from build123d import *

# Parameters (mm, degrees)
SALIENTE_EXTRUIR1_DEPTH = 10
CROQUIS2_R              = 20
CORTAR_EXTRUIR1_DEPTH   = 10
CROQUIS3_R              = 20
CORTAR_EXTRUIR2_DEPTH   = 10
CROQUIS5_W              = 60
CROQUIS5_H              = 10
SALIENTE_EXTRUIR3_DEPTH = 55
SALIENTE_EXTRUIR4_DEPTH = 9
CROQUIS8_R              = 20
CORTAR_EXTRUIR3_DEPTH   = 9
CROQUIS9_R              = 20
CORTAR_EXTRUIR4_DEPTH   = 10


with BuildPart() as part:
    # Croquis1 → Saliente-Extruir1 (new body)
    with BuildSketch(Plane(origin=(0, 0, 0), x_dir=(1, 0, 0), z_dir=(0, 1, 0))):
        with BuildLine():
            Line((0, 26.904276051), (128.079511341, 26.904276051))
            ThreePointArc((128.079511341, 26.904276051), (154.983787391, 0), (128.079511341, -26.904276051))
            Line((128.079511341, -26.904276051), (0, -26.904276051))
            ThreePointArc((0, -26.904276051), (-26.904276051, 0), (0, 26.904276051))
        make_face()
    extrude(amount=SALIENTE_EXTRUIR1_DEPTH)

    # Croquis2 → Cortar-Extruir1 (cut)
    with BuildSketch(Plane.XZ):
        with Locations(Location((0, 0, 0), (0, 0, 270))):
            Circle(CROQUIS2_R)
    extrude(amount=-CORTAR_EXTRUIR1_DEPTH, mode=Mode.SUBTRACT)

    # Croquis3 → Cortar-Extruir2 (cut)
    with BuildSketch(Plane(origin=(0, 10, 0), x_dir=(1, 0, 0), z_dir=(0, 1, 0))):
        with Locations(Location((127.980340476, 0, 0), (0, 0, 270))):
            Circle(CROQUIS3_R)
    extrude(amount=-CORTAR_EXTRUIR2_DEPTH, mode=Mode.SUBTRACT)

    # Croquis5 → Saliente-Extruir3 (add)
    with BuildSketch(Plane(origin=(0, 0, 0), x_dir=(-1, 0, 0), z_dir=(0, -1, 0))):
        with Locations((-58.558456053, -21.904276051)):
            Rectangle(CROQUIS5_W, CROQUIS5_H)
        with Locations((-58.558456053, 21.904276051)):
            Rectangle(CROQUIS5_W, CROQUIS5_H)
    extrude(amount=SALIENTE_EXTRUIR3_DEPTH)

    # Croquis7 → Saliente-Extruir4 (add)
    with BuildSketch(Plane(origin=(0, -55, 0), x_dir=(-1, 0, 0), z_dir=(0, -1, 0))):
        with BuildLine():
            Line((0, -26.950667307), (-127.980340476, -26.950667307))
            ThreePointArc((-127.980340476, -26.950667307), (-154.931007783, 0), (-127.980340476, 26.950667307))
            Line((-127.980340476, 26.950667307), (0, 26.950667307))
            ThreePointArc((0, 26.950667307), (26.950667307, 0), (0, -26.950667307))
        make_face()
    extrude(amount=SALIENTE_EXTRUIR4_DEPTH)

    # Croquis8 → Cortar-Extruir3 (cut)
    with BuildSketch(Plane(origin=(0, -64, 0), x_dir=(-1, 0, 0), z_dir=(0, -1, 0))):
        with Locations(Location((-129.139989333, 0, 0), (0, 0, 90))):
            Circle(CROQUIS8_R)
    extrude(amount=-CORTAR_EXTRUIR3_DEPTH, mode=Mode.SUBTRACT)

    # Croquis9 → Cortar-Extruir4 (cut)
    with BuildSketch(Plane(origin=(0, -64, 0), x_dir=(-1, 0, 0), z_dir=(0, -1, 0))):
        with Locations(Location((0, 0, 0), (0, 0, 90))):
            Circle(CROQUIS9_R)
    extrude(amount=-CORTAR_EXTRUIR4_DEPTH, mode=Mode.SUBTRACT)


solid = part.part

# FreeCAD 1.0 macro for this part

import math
import FreeCAD as App
import Part
import Sketcher


def add_polygon(sketch, points):
    """Adds a closed chain of lines whose ends are joined by coincident constraints."""
    first, n = sketch.GeometryCount, len(points)
    for a, b in zip(points, points[1:] + points[:1]):
        sketch.addGeometry(Part.LineSegment(App.Vector(*a, 0), App.Vector(*b, 0)), False)
    for i in range(n):
        sketch.addConstraint(Sketcher.Constraint("Coincident", first + i, 2, first + (i + 1) % n, 1))

doc = App.newDocument("Part")
body = doc.addObject("PartDesign::Body", "Body")

# Sketch on XZ plane
sketch1 = doc.addObject("Sketcher::SketchObject", "Sketch")
body.addObject(sketch1)
sketch1.AttachmentSupport = (doc.XZ_Plane, [""])
sketch1.MapMode = "FlatFace"
sketch1.addGeometry(Part.LineSegment(App.Vector(128, -27, 0), App.Vector(0, -27, 0)), False)
sketch1.addGeometry(Part.ArcOfCircle(Part.Circle(App.Vector(0, 0, 0), App.Vector(0, 0, 1), 27), math.radians(90), math.radians(270)), False)
sketch1.addGeometry(Part.LineSegment(App.Vector(0, 27, 0), App.Vector(128, 27, 0)), False)
sketch1.addGeometry(Part.ArcOfCircle(Part.Circle(App.Vector(128, 0, 0), App.Vector(0, 0, 1), 27), math.radians(-90), math.radians(90)), False)
sketch1.addConstraint(Sketcher.Constraint("Tangent", 0, 2, 1, 2))
sketch1.addConstraint(Sketcher.Constraint("Tangent", 1, 1, 2, 1))
sketch1.addConstraint(Sketcher.Constraint("Tangent", 2, 2, 3, 2))
sketch1.addConstraint(Sketcher.Constraint("Tangent", 3, 1, 0, 1))
sketch1.addConstraint(Sketcher.Constraint("Horizontal", 0))
sketch1.addConstraint(Sketcher.Constraint("Horizontal", 2))
sketch1.addConstraint(Sketcher.Constraint("Coincident", 1, 3, -1, 1))
sketch1.addConstraint(Sketcher.Constraint("Radius", 1, 26.904276))
sketch1.addConstraint(Sketcher.Constraint("DistanceX", 0, 2, 0, 1, 128.079511))
pad1 = doc.addObject("PartDesign::Pad", "Pad")
body.addObject(pad1)
pad1.Profile = sketch1
pad1.Length = 10
pad1.Reversed = True

# Sketch on XZ plane
sketch2 = doc.addObject("Sketcher::SketchObject", "Sketch001")
body.addObject(sketch2)
sketch2.AttachmentSupport = (doc.XZ_Plane, [""])
sketch2.MapMode = "FlatFace"
sketch2.addGeometry(Part.Circle(App.Vector(0, 0, 0), App.Vector(0, 0, 1), 20), False)
sketch2.addConstraint(Sketcher.Constraint("Coincident", 0, 3, -1, 1))
sketch2.addConstraint(Sketcher.Constraint("Diameter", 0, 40.0))
pocket1 = doc.addObject("PartDesign::Pocket", "Pocket")
body.addObject(pocket1)
pocket1.Profile = sketch2
pocket1.Length = 10

# Sketch on XZ plane
sketch3 = doc.addObject("Sketcher::SketchObject", "Sketch002")
body.addObject(sketch3)
sketch3.AttachmentSupport = (doc.XZ_Plane, [""])
sketch3.MapMode = "FlatFace"
sketch3.AttachmentOffset = App.Placement(App.Vector(0, 0, -10), App.Rotation())
sketch3.addGeometry(Part.Circle(App.Vector(128, 0, 0), App.Vector(0, 0, 1), 20), False)
sketch3.addConstraint(Sketcher.Constraint("PointOnObject", 0, 3, -1))
sketch3.addConstraint(Sketcher.Constraint("Diameter", 0, 40.0))
sketch3.addConstraint(Sketcher.Constraint("DistanceX", -1, 1, 0, 3, 127.98034))
pocket2 = doc.addObject("PartDesign::Pocket", "Pocket001")
body.addObject(pocket2)
pocket2.Profile = sketch3
pocket2.Length = 10
pocket2.Reversed = True

# Sketch on XZ plane
sketch4 = doc.addObject("Sketcher::SketchObject", "Sketch003")
body.addObject(sketch4)
sketch4.AttachmentSupport = (doc.XZ_Plane, [""])
sketch4.MapMode = "FlatFace"
add_polygon(sketch4, [(89, 17), (89, 27), (29, 27), (29, 17)])  # lines 0-3
add_polygon(sketch4, [(89, -27), (89, -17), (29, -17), (29, -27)])  # lines 4-7
sketch4.addConstraint(Sketcher.Constraint("Vertical", 0))
sketch4.addConstraint(Sketcher.Constraint("Horizontal", 1))
sketch4.addConstraint(Sketcher.Constraint("Vertical", 2))
sketch4.addConstraint(Sketcher.Constraint("Horizontal", 3))
sketch4.addConstraint(Sketcher.Constraint("Vertical", 4))
sketch4.addConstraint(Sketcher.Constraint("Horizontal", 5))
sketch4.addConstraint(Sketcher.Constraint("Vertical", 6))
sketch4.addConstraint(Sketcher.Constraint("Horizontal", 7))
sketch4.addConstraint(Sketcher.Constraint("Symmetric", 3, 2, 4, 2, -1))
sketch4.addConstraint(Sketcher.Constraint("Symmetric", 1, 2, 6, 2, -1))
sketch4.addConstraint(Sketcher.Constraint("DistanceX", 1, 2, 1, 1, 60.0))
sketch4.addConstraint(Sketcher.Constraint("DistanceY", 0, 1, 0, 2, 10.0))
sketch4.addConstraint(Sketcher.Constraint("DistanceX", -1, 1, 0, 2, 88.558456))
sketch4.addConstraint(Sketcher.Constraint("DistanceY", -1, 1, 0, 2, 26.904276))
pad2 = doc.addObject("PartDesign::Pad", "Pad001")
body.addObject(pad2)
pad2.Profile = sketch4
pad2.Length = 55

# Sketch on XZ plane
sketch5 = doc.addObject("Sketcher::SketchObject", "Sketch004")
body.addObject(sketch5)
sketch5.AttachmentSupport = (doc.XZ_Plane, [""])
sketch5.MapMode = "FlatFace"
sketch5.AttachmentOffset = App.Placement(App.Vector(0, 0, 55), App.Rotation())
sketch5.addGeometry(Part.LineSegment(App.Vector(128, 27, 0), App.Vector(0, 27, 0)), False)
sketch5.addGeometry(Part.ArcOfCircle(Part.Circle(App.Vector(0, 0, 0), App.Vector(0, 0, 1), 27), math.radians(90), math.radians(270)), False)
sketch5.addGeometry(Part.LineSegment(App.Vector(0, -27, 0), App.Vector(128, -27, 0)), False)
sketch5.addGeometry(Part.ArcOfCircle(Part.Circle(App.Vector(128, 0, 0), App.Vector(0, 0, 1), 27), math.radians(-90), math.radians(90)), False)
sketch5.addConstraint(Sketcher.Constraint("Tangent", 0, 2, 1, 1))
sketch5.addConstraint(Sketcher.Constraint("Tangent", 1, 2, 2, 1))
sketch5.addConstraint(Sketcher.Constraint("Tangent", 2, 2, 3, 1))
sketch5.addConstraint(Sketcher.Constraint("Tangent", 3, 2, 0, 1))
sketch5.addConstraint(Sketcher.Constraint("Horizontal", 0))
sketch5.addConstraint(Sketcher.Constraint("Horizontal", 2))
sketch5.addConstraint(Sketcher.Constraint("Coincident", 1, 3, -1, 1))
sketch5.addConstraint(Sketcher.Constraint("Radius", 1, 26.950667))
sketch5.addConstraint(Sketcher.Constraint("DistanceX", 0, 2, 0, 1, 127.98034))
pad3 = doc.addObject("PartDesign::Pad", "Pad002")
body.addObject(pad3)
pad3.Profile = sketch5
pad3.Length = 9

# Sketch on XZ plane
sketch6 = doc.addObject("Sketcher::SketchObject", "Sketch005")
body.addObject(sketch6)
sketch6.AttachmentSupport = (doc.XZ_Plane, [""])
sketch6.MapMode = "FlatFace"
sketch6.AttachmentOffset = App.Placement(App.Vector(0, 0, 64), App.Rotation())
sketch6.addGeometry(Part.Circle(App.Vector(129, 0, 0), App.Vector(0, 0, 1), 20), False)
sketch6.addConstraint(Sketcher.Constraint("PointOnObject", 0, 3, -1))
sketch6.addConstraint(Sketcher.Constraint("Diameter", 0, 40.0))
sketch6.addConstraint(Sketcher.Constraint("DistanceX", -1, 1, 0, 3, 129.139989))
pocket3 = doc.addObject("PartDesign::Pocket", "Pocket002")
body.addObject(pocket3)
pocket3.Profile = sketch6
pocket3.Length = 9

# Sketch on XZ plane
sketch7 = doc.addObject("Sketcher::SketchObject", "Sketch006")
body.addObject(sketch7)
sketch7.AttachmentSupport = (doc.XZ_Plane, [""])
sketch7.MapMode = "FlatFace"
sketch7.AttachmentOffset = App.Placement(App.Vector(0, 0, 64), App.Rotation())
sketch7.addGeometry(Part.Circle(App.Vector(0, 0, 0), App.Vector(0, 0, 1), 20), False)
sketch7.addConstraint(Sketcher.Constraint("Coincident", 0, 3, -1, 1))
sketch7.addConstraint(Sketcher.Constraint("Diameter", 0, 40.0))
pocket4 = doc.addObject("PartDesign::Pocket", "Pocket003")
body.addObject(pocket4)
pocket4.Profile = sketch7
pocket4.Length = 10

doc.recompute()
